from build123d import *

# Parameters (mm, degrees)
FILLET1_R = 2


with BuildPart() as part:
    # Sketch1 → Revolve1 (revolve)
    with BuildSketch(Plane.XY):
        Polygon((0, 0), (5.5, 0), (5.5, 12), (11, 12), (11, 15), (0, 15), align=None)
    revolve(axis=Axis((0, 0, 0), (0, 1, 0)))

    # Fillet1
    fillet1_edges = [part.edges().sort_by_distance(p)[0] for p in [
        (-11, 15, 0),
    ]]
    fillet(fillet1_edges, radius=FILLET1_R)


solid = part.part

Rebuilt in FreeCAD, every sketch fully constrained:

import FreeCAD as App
import Part
import Sketcher

V = App.Vector
Q = App.Units.Quantity


def edges_at(feature, points):
    """Names of the edges that pass closest to the given points."""
    edges = feature.Shape.Edges
    near = lambda p: min(range(len(edges)), key=lambda i: edges[i].distToShape(Part.Vertex(*p))[0])
    return sorted({f"Edge{near(p) + 1}" for p in points})


def add_polygon(sketch, points):
    """Adds a closed chain of lines whose ends are joined by coincident constraints."""
    first, n = sketch.GeometryCount, len(points)
    for a, b in zip(points, points[1:] + points[:1]):
        sketch.addGeometry(Part.LineSegment(App.Vector(*a, 0), App.Vector(*b, 0)), False)
    for i in range(n):
        sketch.addConstraint(Sketcher.Constraint("Coincident", first + i, 2, first + (i + 1) % n, 1))

doc = App.newDocument("Part")
body = doc.addObject("PartDesign::Body", "Body")

# Sketch on XY plane
sketch1 = doc.addObject("Sketcher::SketchObject", "Sketch")
body.addObject(sketch1)
sketch1.AttachmentSupport = (doc.XY_Plane, [""])
sketch1.MapMode = "FlatFace"
add_polygon(sketch1, [(0, 0), (5.5, 0), (5.5, 12), (11, 12), (11, 15), (0, 15)])  # lines 0-5
sketch1.addConstraint([
    Sketcher.Constraint("Horizontal", 0),
    Sketcher.Constraint("Vertical", 1),
    Sketcher.Constraint("Horizontal", 2),
    Sketcher.Constraint("Vertical", 3),
    Sketcher.Constraint("Horizontal", 4),
    Sketcher.Constraint("Vertical", 5),
    Sketcher.Constraint("Coincident", 5, 2, -1, 1),
    Sketcher.Constraint("Equal", 0, 2),
    Sketcher.Constraint("DistanceX", 4, 2, 4, 1, Q("11 mm")),
    Sketcher.Constraint("DistanceY", 1, 1, 1, 2, Q("12 mm")),
    Sketcher.Constraint("DistanceY", 3, 1, 3, 2, Q("3 mm")),
])
revolution = doc.addObject("PartDesign::Revolution", "Revolution")
body.addObject(revolution)
revolution.Profile = sketch1
revolution.ReferenceAxis = (sketch1, ["V_Axis"])
revolution.Angle = 360
doc.recompute()

fillet = doc.addObject("PartDesign::Fillet", "Fillet")
body.addObject(fillet)
fillet.Base = (revolution, edges_at(revolution, [(-11, 15, 0)]))
fillet.Radius = 2

doc.recompute()
